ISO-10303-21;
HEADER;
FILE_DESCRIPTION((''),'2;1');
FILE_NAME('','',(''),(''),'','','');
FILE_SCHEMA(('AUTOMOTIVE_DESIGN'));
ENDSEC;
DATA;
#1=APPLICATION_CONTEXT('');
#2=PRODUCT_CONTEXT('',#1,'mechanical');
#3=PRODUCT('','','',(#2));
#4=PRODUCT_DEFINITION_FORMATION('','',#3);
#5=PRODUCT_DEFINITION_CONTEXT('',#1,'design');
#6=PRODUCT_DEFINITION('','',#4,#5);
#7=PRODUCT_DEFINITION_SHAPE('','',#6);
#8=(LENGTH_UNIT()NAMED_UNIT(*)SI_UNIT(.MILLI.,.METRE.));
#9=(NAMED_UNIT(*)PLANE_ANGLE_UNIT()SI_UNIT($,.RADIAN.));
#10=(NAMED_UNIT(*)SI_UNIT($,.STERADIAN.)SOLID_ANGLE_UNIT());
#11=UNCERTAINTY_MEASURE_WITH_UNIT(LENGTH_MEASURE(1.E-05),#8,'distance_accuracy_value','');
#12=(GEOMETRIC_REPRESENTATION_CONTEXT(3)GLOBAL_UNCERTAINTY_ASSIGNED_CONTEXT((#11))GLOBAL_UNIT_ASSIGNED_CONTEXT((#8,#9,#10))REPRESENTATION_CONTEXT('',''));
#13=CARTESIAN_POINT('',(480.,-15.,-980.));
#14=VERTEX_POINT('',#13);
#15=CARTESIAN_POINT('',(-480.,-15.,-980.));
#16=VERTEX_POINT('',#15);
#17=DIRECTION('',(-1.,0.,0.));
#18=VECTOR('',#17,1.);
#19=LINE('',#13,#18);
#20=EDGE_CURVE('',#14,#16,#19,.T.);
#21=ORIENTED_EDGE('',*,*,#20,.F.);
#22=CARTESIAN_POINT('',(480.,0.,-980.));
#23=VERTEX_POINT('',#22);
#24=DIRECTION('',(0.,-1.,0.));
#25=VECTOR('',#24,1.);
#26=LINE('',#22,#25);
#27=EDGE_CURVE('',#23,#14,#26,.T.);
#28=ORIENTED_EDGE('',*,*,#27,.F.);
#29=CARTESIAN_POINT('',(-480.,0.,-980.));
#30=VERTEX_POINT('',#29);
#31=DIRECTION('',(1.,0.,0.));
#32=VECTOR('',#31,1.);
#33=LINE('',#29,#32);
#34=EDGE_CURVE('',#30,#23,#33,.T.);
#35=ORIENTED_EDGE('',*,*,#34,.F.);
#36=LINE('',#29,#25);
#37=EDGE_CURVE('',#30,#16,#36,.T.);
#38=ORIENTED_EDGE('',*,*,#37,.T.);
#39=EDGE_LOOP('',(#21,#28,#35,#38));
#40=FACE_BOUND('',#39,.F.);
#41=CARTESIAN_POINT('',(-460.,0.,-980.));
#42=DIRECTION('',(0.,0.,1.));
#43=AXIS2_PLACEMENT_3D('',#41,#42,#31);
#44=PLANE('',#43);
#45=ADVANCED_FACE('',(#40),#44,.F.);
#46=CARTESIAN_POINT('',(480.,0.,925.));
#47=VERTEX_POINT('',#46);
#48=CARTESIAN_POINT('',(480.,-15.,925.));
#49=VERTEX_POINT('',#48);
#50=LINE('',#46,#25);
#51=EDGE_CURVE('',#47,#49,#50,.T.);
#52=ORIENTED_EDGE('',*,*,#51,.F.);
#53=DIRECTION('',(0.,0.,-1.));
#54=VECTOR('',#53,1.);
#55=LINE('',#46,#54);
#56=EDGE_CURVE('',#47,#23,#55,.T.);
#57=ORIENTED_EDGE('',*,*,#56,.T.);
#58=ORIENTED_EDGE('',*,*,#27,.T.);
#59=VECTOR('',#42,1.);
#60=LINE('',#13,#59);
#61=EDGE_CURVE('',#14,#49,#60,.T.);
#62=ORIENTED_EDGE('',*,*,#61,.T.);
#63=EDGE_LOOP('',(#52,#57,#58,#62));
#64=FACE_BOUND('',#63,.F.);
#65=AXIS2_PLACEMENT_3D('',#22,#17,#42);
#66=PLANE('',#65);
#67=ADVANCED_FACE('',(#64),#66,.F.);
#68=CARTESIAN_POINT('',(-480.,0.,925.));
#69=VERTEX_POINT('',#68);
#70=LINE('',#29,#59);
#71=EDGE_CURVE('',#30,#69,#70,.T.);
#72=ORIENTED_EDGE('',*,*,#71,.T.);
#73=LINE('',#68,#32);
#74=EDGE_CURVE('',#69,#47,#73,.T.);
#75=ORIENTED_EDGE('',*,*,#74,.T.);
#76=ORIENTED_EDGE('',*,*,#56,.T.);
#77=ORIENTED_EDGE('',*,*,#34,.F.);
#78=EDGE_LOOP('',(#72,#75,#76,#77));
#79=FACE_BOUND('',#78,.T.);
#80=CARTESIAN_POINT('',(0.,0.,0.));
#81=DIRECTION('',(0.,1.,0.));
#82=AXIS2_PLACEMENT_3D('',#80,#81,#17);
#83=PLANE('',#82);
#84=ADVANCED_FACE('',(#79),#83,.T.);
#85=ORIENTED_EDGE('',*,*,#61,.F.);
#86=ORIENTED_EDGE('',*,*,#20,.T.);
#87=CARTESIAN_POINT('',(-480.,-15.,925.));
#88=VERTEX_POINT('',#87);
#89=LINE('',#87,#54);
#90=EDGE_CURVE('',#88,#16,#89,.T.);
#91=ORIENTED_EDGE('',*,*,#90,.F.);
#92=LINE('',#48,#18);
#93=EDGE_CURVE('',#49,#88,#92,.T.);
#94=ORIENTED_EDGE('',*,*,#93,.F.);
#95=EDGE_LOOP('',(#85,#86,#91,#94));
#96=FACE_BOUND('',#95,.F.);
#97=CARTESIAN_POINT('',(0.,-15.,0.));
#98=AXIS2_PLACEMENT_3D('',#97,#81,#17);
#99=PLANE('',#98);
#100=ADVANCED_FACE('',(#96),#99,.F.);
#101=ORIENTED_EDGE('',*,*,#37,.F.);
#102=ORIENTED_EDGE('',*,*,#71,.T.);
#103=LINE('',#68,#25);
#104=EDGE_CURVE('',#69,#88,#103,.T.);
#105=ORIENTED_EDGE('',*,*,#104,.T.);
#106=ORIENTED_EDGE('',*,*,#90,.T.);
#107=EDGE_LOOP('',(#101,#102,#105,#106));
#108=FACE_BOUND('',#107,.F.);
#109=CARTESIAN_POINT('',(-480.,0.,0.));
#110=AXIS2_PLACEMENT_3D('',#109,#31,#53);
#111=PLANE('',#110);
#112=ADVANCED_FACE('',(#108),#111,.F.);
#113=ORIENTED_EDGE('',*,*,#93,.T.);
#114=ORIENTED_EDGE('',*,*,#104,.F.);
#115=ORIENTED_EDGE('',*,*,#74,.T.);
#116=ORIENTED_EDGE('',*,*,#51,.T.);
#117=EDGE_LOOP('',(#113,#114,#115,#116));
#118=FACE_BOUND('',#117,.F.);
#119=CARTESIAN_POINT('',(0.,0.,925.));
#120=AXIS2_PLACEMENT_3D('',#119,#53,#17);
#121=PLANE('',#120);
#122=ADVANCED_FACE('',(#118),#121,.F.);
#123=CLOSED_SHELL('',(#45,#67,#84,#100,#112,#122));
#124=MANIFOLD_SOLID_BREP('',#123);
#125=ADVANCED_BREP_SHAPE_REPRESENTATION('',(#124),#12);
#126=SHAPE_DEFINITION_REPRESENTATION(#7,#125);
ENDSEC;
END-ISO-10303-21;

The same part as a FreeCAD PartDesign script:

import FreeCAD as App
import Part
import Sketcher
from FreeCAD import Vector
Q = App.Units.Quantity

doc = App.newDocument("Part")
body = doc.addObject("PartDesign::Body", "Body")

# Sketch on XZ plane
sketch1 = body.newObject("Sketcher::SketchObject", "Sketch")
sketch1.AttachmentSupport = (doc.getObject("XZ_Plane"), [""])
sketch1.MapMode = "FlatFace"
sketch1.addGeometry(Part.LineSegment(Vector(-480, -980, 0), Vector(-480, 925, 0)), False)
sketch1.addGeometry(Part.LineSegment(Vector(-480, 925, 0), Vector(480, 925, 0)), False)
sketch1.addGeometry(Part.LineSegment(Vector(480, 925, 0), Vector(480, -980, 0)), False)
sketch1.addGeometry(Part.LineSegment(Vector(480, -980, 0), Vector(-480, -980, 0)), False)
sketch1.addConstraint(Sketcher.Constraint("Coincident", 0, 2, 1, 1))
sketch1.addConstraint(Sketcher.Constraint("Coincident", 1, 2, 2, 1))
sketch1.addConstraint(Sketcher.Constraint("Coincident", 2, 2, 3, 1))
sketch1.addConstraint(Sketcher.Constraint("Coincident", 3, 2, 0, 1))
sketch1.addConstraint(Sketcher.Constraint("Vertical", 0))
sketch1.addConstraint(Sketcher.Constraint("Horizontal", 1))
sketch1.addConstraint(Sketcher.Constraint("Vertical", 2))
sketch1.addConstraint(Sketcher.Constraint("Horizontal", 3))
sketch1.addConstraint(Sketcher.Constraint("DistanceX", 1, 1, 1, 2, Q("960 mm")))
sketch1.addConstraint(Sketcher.Constraint("DistanceY", 0, 1, 0, 2, Q("1905 mm")))
sketch1.addConstraint(Sketcher.Constraint("DistanceX", 0, 2, -1, 1, Q("480 mm")))
sketch1.addConstraint(Sketcher.Constraint("DistanceY", -1, 1, 0, 2, Q("925 mm")))
pad1 = body.newObject("PartDesign::Pad", "Pad")
pad1.Profile = sketch1
pad1.Length = 15

doc.recompute()
